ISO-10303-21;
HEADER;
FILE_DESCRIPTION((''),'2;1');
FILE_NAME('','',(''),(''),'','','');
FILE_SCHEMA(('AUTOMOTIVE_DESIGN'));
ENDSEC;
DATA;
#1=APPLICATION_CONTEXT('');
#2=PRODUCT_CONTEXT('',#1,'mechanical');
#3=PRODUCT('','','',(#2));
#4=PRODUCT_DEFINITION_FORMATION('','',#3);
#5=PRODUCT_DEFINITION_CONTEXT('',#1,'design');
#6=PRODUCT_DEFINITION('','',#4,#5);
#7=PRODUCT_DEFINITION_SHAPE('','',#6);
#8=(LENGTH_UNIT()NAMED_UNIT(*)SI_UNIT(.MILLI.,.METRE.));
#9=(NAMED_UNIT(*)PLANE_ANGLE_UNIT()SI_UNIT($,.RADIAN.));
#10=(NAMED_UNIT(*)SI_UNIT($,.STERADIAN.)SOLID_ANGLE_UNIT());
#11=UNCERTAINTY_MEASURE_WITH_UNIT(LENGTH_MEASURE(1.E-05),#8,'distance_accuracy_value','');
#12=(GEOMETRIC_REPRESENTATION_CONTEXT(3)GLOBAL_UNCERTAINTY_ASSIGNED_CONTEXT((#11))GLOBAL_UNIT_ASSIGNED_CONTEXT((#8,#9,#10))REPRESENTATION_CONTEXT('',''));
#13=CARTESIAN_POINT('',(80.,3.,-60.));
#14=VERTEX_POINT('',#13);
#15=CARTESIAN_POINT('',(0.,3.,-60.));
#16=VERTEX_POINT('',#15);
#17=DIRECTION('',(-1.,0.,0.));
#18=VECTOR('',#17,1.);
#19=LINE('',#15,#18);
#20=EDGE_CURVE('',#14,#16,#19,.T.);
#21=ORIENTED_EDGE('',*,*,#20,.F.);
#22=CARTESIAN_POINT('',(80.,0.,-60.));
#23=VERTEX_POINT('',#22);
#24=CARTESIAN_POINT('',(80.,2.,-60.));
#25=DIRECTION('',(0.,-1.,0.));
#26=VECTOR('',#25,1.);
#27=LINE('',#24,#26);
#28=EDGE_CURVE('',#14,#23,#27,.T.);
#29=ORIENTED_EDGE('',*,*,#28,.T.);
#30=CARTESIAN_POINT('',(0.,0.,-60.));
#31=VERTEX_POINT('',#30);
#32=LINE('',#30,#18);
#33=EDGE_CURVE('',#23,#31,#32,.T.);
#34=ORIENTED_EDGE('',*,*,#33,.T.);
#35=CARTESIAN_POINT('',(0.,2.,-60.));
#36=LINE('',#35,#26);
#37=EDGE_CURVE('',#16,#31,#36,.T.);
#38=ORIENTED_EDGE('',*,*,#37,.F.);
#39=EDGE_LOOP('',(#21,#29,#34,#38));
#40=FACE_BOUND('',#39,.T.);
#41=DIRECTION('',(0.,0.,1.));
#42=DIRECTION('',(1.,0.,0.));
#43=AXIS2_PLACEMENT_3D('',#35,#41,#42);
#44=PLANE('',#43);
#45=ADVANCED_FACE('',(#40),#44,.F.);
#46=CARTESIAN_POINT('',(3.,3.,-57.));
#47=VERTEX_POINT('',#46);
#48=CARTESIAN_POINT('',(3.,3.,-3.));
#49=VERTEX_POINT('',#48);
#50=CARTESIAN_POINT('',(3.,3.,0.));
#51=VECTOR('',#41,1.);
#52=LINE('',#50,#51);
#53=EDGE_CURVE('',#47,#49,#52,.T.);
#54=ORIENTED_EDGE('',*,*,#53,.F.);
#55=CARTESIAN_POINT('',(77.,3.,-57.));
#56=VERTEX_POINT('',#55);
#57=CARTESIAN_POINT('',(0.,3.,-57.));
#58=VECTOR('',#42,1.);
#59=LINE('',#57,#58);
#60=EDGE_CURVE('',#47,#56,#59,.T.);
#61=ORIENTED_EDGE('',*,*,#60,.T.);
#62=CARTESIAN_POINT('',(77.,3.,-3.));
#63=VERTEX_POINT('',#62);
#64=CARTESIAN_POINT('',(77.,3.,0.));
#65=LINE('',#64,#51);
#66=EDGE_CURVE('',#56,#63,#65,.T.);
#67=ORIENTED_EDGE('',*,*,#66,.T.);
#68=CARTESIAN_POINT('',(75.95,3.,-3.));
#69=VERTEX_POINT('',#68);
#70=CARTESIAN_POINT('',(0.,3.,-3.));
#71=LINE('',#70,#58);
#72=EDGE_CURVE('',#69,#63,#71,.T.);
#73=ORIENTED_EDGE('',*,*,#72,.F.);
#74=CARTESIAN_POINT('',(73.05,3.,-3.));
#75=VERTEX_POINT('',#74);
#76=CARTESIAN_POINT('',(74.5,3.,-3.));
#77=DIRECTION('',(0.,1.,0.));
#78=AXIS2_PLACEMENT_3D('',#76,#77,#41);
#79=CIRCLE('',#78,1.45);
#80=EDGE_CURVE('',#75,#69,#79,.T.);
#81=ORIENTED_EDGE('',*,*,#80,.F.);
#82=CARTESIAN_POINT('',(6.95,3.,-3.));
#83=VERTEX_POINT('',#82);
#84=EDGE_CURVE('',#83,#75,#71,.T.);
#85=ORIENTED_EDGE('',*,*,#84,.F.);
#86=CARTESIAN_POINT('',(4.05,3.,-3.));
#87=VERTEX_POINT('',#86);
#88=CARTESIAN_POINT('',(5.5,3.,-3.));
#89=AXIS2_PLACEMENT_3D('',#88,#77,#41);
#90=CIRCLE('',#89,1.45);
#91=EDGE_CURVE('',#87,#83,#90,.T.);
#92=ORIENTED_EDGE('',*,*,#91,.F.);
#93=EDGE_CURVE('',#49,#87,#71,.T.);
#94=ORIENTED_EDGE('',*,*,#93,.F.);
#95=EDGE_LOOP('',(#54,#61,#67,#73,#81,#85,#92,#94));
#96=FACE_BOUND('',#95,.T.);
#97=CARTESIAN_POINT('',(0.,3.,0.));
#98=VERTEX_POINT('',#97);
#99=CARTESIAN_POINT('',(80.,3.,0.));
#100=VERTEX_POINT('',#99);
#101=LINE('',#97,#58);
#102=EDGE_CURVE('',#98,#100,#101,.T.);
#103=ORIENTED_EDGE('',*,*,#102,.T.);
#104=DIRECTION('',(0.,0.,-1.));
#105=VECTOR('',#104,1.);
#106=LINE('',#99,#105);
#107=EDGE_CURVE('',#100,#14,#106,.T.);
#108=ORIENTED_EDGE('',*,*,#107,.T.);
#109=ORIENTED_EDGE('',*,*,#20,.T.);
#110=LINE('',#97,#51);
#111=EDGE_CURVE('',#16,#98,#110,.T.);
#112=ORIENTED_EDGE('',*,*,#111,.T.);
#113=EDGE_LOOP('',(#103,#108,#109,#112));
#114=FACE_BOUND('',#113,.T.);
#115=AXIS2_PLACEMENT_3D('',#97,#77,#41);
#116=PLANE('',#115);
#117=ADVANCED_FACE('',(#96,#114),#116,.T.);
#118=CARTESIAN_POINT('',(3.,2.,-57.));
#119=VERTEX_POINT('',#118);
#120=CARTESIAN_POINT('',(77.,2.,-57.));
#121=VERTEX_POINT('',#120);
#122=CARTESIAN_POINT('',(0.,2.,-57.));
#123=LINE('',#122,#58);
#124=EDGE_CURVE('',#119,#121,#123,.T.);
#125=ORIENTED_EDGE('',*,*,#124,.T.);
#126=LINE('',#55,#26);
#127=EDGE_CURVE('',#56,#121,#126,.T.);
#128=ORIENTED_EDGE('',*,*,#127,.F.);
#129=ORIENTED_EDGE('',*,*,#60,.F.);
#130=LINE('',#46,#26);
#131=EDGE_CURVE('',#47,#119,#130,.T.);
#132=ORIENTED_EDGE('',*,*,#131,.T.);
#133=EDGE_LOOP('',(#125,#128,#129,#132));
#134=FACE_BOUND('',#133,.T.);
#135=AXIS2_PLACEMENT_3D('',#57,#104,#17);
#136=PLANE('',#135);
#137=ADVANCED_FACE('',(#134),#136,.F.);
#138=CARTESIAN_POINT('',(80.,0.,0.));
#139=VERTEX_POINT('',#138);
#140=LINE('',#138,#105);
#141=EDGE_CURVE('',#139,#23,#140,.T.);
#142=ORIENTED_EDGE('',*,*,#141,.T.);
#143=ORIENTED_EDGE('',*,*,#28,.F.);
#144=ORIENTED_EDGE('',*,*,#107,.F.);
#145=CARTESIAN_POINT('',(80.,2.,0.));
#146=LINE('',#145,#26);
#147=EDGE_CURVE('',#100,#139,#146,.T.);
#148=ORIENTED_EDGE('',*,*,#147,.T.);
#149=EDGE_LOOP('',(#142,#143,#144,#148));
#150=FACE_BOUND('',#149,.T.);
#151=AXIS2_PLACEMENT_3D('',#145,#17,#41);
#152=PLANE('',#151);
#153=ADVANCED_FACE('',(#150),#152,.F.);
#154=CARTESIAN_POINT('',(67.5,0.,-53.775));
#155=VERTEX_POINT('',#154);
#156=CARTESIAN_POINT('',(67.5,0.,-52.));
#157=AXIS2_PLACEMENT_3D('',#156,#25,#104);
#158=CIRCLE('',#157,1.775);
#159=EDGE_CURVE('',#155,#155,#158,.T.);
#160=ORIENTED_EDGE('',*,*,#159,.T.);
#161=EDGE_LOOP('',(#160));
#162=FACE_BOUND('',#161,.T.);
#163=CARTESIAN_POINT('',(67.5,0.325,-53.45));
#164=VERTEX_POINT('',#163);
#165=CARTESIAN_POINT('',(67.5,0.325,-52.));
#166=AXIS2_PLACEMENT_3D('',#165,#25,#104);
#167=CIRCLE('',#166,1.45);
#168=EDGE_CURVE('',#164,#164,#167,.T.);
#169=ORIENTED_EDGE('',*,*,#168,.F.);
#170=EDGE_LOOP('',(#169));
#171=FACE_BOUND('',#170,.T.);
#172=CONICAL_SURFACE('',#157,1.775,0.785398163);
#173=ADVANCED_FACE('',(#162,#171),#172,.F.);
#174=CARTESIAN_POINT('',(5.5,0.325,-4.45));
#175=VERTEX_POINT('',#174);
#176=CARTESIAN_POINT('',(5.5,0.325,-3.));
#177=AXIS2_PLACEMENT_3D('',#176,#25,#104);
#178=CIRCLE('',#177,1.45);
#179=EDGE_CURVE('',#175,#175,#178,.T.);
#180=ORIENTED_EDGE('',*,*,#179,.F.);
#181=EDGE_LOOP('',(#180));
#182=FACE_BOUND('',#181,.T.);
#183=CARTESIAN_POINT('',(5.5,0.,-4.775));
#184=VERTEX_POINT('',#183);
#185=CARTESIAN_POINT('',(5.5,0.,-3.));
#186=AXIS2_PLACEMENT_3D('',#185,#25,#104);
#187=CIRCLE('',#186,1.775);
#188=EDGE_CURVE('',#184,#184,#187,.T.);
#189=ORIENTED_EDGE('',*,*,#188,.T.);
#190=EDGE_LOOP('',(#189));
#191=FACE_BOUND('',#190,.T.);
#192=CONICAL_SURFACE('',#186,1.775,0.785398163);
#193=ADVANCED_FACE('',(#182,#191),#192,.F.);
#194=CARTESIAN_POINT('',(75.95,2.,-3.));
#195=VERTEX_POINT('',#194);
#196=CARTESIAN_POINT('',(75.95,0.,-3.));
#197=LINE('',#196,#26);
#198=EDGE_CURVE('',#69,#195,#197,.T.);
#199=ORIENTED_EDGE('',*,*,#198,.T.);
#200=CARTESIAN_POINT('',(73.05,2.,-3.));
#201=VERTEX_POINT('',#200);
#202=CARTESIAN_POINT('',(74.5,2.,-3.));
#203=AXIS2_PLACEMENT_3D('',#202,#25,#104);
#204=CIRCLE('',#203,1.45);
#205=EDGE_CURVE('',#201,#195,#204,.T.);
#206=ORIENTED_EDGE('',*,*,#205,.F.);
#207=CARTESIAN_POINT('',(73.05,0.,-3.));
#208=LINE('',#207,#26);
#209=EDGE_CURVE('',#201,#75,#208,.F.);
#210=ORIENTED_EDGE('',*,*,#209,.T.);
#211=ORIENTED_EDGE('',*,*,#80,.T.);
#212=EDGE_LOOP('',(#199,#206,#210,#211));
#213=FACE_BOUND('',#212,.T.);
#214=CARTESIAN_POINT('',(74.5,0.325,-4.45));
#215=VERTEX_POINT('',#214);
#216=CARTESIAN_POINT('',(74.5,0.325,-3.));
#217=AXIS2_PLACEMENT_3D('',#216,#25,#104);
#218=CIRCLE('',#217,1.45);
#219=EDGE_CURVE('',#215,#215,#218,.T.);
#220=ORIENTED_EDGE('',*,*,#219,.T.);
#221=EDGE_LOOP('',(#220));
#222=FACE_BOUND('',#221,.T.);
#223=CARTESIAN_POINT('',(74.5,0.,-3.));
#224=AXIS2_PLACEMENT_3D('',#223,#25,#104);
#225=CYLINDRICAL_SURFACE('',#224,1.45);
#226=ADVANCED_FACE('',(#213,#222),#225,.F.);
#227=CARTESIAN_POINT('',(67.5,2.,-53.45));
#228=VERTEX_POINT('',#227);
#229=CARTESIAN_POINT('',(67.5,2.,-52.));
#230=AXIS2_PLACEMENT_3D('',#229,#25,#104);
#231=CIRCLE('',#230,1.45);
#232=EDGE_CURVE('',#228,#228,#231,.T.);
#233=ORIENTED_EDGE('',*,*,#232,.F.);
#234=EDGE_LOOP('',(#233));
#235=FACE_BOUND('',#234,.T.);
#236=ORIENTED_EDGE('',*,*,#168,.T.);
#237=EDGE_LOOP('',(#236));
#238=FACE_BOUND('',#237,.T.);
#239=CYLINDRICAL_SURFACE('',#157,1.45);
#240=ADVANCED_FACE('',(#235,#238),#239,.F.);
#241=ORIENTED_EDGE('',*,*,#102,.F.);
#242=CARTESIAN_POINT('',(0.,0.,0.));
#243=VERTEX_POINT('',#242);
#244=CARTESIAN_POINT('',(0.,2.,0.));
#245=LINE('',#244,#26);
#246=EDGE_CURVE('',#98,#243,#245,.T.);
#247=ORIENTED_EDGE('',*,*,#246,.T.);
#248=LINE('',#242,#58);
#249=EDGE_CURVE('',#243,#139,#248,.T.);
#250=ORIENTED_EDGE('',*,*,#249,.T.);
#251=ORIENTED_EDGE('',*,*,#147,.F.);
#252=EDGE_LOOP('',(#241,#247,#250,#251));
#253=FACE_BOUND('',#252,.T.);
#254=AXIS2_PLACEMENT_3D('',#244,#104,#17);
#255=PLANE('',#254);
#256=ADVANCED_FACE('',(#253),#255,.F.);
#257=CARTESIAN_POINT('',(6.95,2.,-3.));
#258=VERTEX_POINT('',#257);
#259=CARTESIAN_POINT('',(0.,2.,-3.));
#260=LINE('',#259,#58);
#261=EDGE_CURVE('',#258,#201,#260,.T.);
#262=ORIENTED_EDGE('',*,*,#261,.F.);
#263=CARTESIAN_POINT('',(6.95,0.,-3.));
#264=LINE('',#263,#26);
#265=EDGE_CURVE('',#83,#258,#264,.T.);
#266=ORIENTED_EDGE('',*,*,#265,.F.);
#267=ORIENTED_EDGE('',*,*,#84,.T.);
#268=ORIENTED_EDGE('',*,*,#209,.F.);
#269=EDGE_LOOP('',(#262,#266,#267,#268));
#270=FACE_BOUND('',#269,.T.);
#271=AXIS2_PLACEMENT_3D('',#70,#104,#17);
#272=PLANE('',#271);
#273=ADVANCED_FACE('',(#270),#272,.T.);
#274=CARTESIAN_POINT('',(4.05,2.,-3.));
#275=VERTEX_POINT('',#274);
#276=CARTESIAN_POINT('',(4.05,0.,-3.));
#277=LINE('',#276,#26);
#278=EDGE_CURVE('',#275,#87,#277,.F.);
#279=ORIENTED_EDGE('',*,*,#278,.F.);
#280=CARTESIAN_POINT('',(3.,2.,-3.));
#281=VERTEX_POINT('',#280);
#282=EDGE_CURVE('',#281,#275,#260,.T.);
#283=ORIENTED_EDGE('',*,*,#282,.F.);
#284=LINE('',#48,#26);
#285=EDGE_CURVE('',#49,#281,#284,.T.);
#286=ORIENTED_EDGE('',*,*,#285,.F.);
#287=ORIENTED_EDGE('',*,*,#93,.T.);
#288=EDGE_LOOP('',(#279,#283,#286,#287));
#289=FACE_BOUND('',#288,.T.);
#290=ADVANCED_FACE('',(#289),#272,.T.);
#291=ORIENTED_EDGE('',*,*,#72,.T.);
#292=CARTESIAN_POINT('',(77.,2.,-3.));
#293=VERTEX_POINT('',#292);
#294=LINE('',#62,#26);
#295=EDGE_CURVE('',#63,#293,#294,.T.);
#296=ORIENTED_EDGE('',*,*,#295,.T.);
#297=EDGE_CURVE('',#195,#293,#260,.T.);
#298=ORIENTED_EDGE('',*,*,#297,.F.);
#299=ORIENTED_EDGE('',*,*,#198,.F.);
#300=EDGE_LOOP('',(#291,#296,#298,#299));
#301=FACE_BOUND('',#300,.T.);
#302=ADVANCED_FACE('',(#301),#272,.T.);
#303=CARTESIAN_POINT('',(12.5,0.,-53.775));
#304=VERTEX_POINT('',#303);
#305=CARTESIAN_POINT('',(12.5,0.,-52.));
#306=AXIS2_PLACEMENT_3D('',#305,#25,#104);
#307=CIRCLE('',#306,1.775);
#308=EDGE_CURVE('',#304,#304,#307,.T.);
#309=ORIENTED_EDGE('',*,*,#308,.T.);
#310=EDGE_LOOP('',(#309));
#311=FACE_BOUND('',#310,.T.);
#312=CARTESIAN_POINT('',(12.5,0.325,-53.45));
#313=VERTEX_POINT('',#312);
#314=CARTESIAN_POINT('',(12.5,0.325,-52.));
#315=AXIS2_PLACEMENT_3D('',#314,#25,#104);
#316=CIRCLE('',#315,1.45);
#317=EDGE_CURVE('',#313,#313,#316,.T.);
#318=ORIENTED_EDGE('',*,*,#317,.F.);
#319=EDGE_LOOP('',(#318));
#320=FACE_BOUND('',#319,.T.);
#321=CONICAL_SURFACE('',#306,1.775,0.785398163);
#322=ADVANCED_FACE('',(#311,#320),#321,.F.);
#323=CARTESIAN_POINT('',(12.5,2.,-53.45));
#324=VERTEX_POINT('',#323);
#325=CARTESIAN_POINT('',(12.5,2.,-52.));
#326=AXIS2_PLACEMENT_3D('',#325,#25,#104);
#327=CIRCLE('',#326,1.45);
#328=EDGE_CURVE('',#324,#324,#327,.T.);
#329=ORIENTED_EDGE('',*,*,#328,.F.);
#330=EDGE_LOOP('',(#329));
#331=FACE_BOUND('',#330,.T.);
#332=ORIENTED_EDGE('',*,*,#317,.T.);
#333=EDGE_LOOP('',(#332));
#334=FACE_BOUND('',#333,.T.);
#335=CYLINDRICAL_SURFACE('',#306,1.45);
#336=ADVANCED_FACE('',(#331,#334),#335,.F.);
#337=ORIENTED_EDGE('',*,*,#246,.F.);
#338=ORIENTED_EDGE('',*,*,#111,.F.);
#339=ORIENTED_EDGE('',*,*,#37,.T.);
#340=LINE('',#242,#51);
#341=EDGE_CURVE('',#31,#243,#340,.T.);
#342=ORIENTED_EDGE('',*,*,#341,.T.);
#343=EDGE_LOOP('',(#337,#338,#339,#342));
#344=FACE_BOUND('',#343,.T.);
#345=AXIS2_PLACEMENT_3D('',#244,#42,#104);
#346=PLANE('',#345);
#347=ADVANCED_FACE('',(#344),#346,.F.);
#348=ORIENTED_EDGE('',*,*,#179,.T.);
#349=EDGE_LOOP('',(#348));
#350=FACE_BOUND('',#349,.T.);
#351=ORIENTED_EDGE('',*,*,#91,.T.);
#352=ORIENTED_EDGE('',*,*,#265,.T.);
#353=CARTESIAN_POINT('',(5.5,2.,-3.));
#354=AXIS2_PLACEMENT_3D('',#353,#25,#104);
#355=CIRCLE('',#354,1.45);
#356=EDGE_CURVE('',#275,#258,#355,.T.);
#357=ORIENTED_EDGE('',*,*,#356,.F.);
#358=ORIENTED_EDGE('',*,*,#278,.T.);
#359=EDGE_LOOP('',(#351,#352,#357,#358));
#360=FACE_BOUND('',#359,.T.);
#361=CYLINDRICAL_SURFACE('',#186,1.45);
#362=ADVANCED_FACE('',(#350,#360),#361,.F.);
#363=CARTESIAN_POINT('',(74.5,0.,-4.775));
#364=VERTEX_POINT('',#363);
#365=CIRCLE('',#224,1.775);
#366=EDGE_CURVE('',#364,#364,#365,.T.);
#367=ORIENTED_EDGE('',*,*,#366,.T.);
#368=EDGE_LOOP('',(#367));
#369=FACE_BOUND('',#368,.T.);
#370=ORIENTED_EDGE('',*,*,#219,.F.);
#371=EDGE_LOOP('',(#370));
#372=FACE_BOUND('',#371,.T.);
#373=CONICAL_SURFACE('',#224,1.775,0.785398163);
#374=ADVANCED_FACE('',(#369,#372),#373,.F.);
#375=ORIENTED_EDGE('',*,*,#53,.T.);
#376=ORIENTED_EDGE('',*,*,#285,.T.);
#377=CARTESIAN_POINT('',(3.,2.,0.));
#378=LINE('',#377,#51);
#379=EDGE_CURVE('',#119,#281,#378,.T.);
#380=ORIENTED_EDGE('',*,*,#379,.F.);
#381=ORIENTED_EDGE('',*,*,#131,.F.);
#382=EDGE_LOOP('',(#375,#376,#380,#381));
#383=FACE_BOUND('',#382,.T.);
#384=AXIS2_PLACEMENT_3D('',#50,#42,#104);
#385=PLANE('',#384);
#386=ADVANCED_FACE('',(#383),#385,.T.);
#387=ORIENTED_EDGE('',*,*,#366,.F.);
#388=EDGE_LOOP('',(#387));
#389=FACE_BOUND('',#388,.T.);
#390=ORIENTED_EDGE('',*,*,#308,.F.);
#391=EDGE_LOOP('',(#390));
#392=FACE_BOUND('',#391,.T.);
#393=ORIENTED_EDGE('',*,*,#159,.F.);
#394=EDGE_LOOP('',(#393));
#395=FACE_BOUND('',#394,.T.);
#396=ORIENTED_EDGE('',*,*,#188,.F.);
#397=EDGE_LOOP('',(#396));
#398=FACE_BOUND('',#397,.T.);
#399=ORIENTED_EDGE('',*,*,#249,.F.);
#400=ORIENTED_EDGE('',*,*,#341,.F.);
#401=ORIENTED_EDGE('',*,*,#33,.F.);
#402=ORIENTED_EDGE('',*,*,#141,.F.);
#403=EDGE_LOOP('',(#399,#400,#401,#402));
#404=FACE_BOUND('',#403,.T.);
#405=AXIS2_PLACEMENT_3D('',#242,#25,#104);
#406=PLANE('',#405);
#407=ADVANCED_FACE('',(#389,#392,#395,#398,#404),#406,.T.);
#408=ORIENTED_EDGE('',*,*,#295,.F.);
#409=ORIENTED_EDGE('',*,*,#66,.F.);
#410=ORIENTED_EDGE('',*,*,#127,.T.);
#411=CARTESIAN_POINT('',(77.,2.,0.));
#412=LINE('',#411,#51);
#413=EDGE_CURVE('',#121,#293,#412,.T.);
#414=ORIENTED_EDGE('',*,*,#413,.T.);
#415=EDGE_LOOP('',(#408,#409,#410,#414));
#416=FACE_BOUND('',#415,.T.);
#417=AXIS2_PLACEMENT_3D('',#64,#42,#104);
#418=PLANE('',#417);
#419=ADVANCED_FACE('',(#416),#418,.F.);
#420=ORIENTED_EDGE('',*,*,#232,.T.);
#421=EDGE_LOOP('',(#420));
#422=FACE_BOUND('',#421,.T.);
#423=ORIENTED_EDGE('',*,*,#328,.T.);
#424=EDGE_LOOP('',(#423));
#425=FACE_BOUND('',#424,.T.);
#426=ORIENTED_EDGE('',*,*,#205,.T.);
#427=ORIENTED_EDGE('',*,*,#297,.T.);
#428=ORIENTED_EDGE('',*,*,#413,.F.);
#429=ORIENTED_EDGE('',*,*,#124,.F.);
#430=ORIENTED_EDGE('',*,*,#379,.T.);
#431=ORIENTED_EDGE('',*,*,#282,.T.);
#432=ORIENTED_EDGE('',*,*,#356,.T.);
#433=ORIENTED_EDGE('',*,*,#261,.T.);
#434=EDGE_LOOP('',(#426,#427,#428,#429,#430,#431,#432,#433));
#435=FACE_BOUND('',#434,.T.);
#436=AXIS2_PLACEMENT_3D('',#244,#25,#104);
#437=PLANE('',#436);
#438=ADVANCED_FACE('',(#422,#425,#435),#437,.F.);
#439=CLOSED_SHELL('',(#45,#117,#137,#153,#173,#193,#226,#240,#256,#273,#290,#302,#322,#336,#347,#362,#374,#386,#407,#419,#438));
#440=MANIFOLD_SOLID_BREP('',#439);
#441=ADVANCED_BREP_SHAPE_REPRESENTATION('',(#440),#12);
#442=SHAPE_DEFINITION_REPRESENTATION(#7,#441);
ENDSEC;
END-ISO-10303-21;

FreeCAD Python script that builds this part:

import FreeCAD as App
import Part
import Sketcher

doc = App.newDocument("Part")
params = doc.addObject("Spreadsheet::Sheet", "Params")
for row, (alias, value) in enumerate([
    ("sketch1_width", "80 mm"),
    ("sketch1_height", "60 mm"),
    ("pad1_length", "2 mm"),
    ("sketch2_width", "80 mm"),
    ("sketch2_width2", "74 mm"),
    ("sketch2_height", "60 mm"),
    ("sketch2_height2", "54 mm"),
    ("pad2_length", "1 mm"),
    ("sketch3_diameter", "2.9 mm"),
    ("hole_diameter", "2.9 mm"),
    ("hole_depth", "8.8 mm"),
    ("hole_csink_diameter", "3.55 mm"),
], start=1):
    params.set(f"A{row}", alias)
    params.set(f"B{row}", "=" + value)
    params.setAlias(f"B{row}", alias)

body = doc.addObject("PartDesign::Body", "Body")

sketch1 = body.newObject("Sketcher::SketchObject", "Sketch")
sketch1.AttachmentSupport = (doc.getObject("XZ_Plane"), [""])
sketch1.MapMode = "FlatFace"
sketch1.addGeometry([
    Part.LineSegment(App.Vector(0, -60, 0), App.Vector(0, 0, 0)),
    Part.LineSegment(App.Vector(0, 0, 0), App.Vector(80, 0, 0)),
    Part.LineSegment(App.Vector(80, 0, 0), App.Vector(80, -60, 0)),
    Part.LineSegment(App.Vector(80, -60, 0), App.Vector(0, -60, 0)),
], False)
sketch1.addConstraint([
    Sketcher.Constraint("Coincident", 0, 2, 1, 1),
    Sketcher.Constraint("Coincident", 1, 2, 2, 1),
    Sketcher.Constraint("Coincident", 2, 2, 3, 1),
    Sketcher.Constraint("Coincident", 3, 2, 0, 1),
    Sketcher.Constraint("Vertical", 0),
    Sketcher.Constraint("Horizontal", 1),
    Sketcher.Constraint("Vertical", 2),
    Sketcher.Constraint("Horizontal", 3),
    Sketcher.Constraint("Coincident", 0, 2, -1, 1),
    Sketcher.Constraint("DistanceX", 1, 1, 1, 2, 80.0),
    Sketcher.Constraint("DistanceY", 0, 1, 0, 2, 60.0),
])
sketch1.setExpression("Constraints[9]", "Params.sketch1_width")
sketch1.setExpression("Constraints[10]", "Params.sketch1_height")
pad1 = body.newObject("PartDesign::Pad", "Pad")
pad1.Profile = sketch1
pad1.setExpression("Length", "Params.pad1_length")
pad1.Reversed = True

sketch2 = body.newObject("Sketcher::SketchObject", "Sketch001")
sketch2.AttachmentSupport = (doc.getObject("XZ_Plane"), [""])
sketch2.MapMode = "FlatFace"
sketch2.AttachmentOffset = App.Placement(App.Vector(0, 0, -2), App.Rotation())
sketch2.addGeometry([
    Part.LineSegment(App.Vector(80, -60, 0), App.Vector(0, -60, 0)),
    Part.LineSegment(App.Vector(0, -60, 0), App.Vector(0, 0, 0)),
    Part.LineSegment(App.Vector(0, 0, 0), App.Vector(80, 0, 0)),
    Part.LineSegment(App.Vector(80, 0, 0), App.Vector(80, -60, 0)),
    Part.LineSegment(App.Vector(77, -3, 0), App.Vector(3, -3, 0)),
    Part.LineSegment(App.Vector(3, -3, 0), App.Vector(3, -57, 0)),
    Part.LineSegment(App.Vector(3, -57, 0), App.Vector(77, -57, 0)),
    Part.LineSegment(App.Vector(77, -57, 0), App.Vector(77, -3, 0)),
], False)
sketch2.addConstraint([
    Sketcher.Constraint("Coincident", 0, 2, 1, 1),
    Sketcher.Constraint("Coincident", 1, 2, 2, 1),
    Sketcher.Constraint("Coincident", 2, 2, 3, 1),
    Sketcher.Constraint("Coincident", 3, 2, 0, 1),
    Sketcher.Constraint("Coincident", 4, 2, 5, 1),
    Sketcher.Constraint("Coincident", 5, 2, 6, 1),
    Sketcher.Constraint("Coincident", 6, 2, 7, 1),
    Sketcher.Constraint("Coincident", 7, 2, 4, 1),
    Sketcher.Constraint("Horizontal", 0),
    Sketcher.Constraint("Vertical", 1),
    Sketcher.Constraint("Horizontal", 2),
    Sketcher.Constraint("Vertical", 3),
    Sketcher.Constraint("Horizontal", 4),
    Sketcher.Constraint("Vertical", 5),
    Sketcher.Constraint("Horizontal", 6),
    Sketcher.Constraint("Vertical", 7),
    Sketcher.Constraint("Coincident", 1, 2, -1, 1),
    Sketcher.Constraint("DistanceX", 0, 2, 0, 1, 80.0),
    Sketcher.Constraint("DistanceX", 4, 2, 4, 1, 74.0),
    Sketcher.Constraint("DistanceY", 1, 1, 1, 2, 60.0),
    Sketcher.Constraint("DistanceY", 5, 2, 5, 1, 54.0),
    Sketcher.Constraint("DistanceX", -1, 1, 4, 2, 3.0),
    Sketcher.Constraint("DistanceY", 4, 2, -1, 1, 3.0),
])
sketch2.setExpression("Constraints[17]", "Params.sketch2_width")
sketch2.setExpression("Constraints[18]", "Params.sketch2_width2")
sketch2.setExpression("Constraints[19]", "Params.sketch2_height")
sketch2.setExpression("Constraints[20]", "Params.sketch2_height2")
pad2 = body.newObject("PartDesign::Pad", "Pad001")
pad2.Profile = sketch2
pad2.setExpression("Length", "Params.pad2_length")
pad2.Reversed = True

sketch3 = body.newObject("Sketcher::SketchObject", "Sketch002")
sketch3.AttachmentSupport = (doc.getObject("XZ_Plane"), [""])
sketch3.MapMode = "FlatFace"
sketch3.addGeometry([
    Part.Circle(App.Vector(5.5, -3, 0), App.Vector(0, 0, 1), 1.4),
    Part.Circle(App.Vector(74.5, -3, 0), App.Vector(0, 0, 1), 1.4),
    Part.Circle(App.Vector(12.5, -52, 0), App.Vector(0, 0, 1), 1.4),
    Part.Circle(App.Vector(67.5, -52, 0), App.Vector(0, 0, 1), 1.4),
], False)
sketch3.addConstraint([
    Sketcher.Constraint("Equal", 0, 1),
    Sketcher.Constraint("Equal", 1, 2),
    Sketcher.Constraint("Equal", 2, 3),
    Sketcher.Constraint("Horizontal", 0, 3, 1, 3),
    Sketcher.Constraint("Horizontal", 2, 3, 3, 3),
    Sketcher.Constraint("Diameter", 0, 2.9),
    Sketcher.Constraint("DistanceY", 0, 3, -1, 1, 3.0),
    Sketcher.Constraint("DistanceY", 2, 3, -1, 1, 52.0),
    Sketcher.Constraint("DistanceX", 0, 3, 1, 3, 69.0),
    Sketcher.Constraint("DistanceX", 0, 3, 2, 3, 7.0),
    Sketcher.Constraint("DistanceX", 3, 3, 1, 3, 7.0),
    Sketcher.Constraint("DistanceX", -1, 1, 0, 3, 5.5),
])
sketch3.setExpression("Constraints[5]", "Params.sketch3_diameter")
doc.recompute()
hole = body.newObject("PartDesign::Hole", "Hole")
hole.Profile = sketch3
hole.ThreadType = "None"
hole.setExpression("Diameter", "Params.hole_diameter")
hole.DepthType = "Dimension"
hole.setExpression("Depth", "Params.hole_depth")
hole.DrillPoint = "Angled"
hole.DrillPointAngle = 118
hole.HoleCutType = "Countersink"
hole.setExpression("HoleCutDiameter", "Params.hole_csink_diameter")
hole.HoleCutCountersinkAngle = 90

doc.recompute()
